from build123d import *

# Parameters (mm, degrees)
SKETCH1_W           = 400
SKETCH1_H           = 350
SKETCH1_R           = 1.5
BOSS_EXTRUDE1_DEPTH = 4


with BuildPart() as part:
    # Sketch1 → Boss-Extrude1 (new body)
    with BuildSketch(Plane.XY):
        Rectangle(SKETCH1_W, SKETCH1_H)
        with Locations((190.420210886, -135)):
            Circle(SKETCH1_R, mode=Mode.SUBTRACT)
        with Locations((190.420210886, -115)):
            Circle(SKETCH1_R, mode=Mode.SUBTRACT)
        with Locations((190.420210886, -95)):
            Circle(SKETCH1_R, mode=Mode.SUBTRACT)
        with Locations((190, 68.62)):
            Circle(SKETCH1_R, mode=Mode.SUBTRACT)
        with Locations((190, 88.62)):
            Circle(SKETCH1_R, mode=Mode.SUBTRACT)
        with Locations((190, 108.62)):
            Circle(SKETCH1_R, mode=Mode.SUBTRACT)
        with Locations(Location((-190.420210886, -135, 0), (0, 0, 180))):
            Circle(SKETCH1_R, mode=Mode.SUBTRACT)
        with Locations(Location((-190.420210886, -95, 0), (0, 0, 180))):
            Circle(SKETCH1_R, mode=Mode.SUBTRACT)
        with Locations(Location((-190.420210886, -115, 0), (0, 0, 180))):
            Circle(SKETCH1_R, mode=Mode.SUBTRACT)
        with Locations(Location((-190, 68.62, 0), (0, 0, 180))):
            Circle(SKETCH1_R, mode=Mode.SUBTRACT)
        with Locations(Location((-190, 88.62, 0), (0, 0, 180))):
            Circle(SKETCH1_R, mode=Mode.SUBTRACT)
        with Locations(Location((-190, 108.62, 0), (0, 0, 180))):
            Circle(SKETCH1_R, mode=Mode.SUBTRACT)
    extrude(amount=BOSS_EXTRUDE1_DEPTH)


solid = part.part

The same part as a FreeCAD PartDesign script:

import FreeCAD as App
import Part
import Sketcher
from FreeCAD import Vector
Q = App.Units.Quantity

doc = App.newDocument("Part")
params = doc.addObject("Spreadsheet::Sheet", "Params")
for row, (alias, value) in enumerate([
    ("sketch1_diameter", "3 mm"),
    ("sketch1_width", "400 mm"),
    ("sketch1_height", "350 mm"),
    ("pad1_length", "4 mm"),
], start=1):
    params.set(f"A{row}", alias)
    params.set(f"B{row}", "=" + value)
    params.setAlias(f"B{row}", alias)

body = doc.addObject("PartDesign::Body", "Body")

# Sketch on XY plane
sketch1 = body.newObject("Sketcher::SketchObject", "Sketch")
sketch1.AttachmentSupport = (doc.getObject("XY_Plane"), [""])
sketch1.MapMode = "FlatFace"
sketch1.addGeometry([
    Part.LineSegment(Vector(-200, 175, 0), Vector(-200, -175, 0)),  # 0
    Part.LineSegment(Vector(-200, -175, 0), Vector(200, -175, 0)),  # 1
    Part.LineSegment(Vector(200, -175, 0), Vector(200, 175, 0)),  # 2
    Part.LineSegment(Vector(200, 175, 0), Vector(-200, 175, 0)),  # 3
    Part.Circle(Vector(-190.4, -135, 0), Vector(0, 0, 1), 1.5),  # 4
    Part.Circle(Vector(-190.4, -115, 0), Vector(0, 0, 1), 1.5),  # 5
    Part.Circle(Vector(-190.4, -95, 0), Vector(0, 0, 1), 1.5),  # 6
    Part.Circle(Vector(190.4, -135, 0), Vector(0, 0, 1), 1.5),  # 7
    Part.Circle(Vector(190.4, -115, 0), Vector(0, 0, 1), 1.5),  # 8
    Part.Circle(Vector(190.4, -95, 0), Vector(0, 0, 1), 1.5),  # 9
    Part.Circle(Vector(-190, 68.6, 0), Vector(0, 0, 1), 1.5),  # 10
    Part.Circle(Vector(-190, 88.6, 0), Vector(0, 0, 1), 1.5),  # 11
    Part.Circle(Vector(-190, 108.6, 0), Vector(0, 0, 1), 1.5),  # 12
    Part.Circle(Vector(190, 68.6, 0), Vector(0, 0, 1), 1.5),  # 13
    Part.Circle(Vector(190, 88.6, 0), Vector(0, 0, 1), 1.5),  # 14
    Part.Circle(Vector(190, 108.6, 0), Vector(0, 0, 1), 1.5),  # 15
], False)
sketch1.addConstraint([
    Sketcher.Constraint("Coincident", 0, 2, 1, 1),
    Sketcher.Constraint("Coincident", 1, 2, 2, 1),
    Sketcher.Constraint("Coincident", 2, 2, 3, 1),
    Sketcher.Constraint("Coincident", 3, 2, 0, 1),
    Sketcher.Constraint("Vertical", 0),
    Sketcher.Constraint("Horizontal", 1),
    Sketcher.Constraint("Vertical", 2),
    Sketcher.Constraint("Horizontal", 3),
    Sketcher.Constraint("Equal", 4, 5),
    Sketcher.Constraint("Equal", 5, 6),
    Sketcher.Constraint("Equal", 6, 7),
    Sketcher.Constraint("Equal", 7, 8),
    Sketcher.Constraint("Equal", 8, 9),
    Sketcher.Constraint("Equal", 9, 10),
    Sketcher.Constraint("Equal", 10, 11),
    Sketcher.Constraint("Equal", 11, 12),
    Sketcher.Constraint("Equal", 12, 13),
    Sketcher.Constraint("Equal", 13, 14),
    Sketcher.Constraint("Equal", 14, 15),
    Sketcher.Constraint("Symmetric", 0, 2, 2, 2, -1, 1),
    Sketcher.Constraint("Symmetric", 4, 3, 7, 3, -2),
    Sketcher.Constraint("Symmetric", 5, 3, 8, 3, -2),
    Sketcher.Constraint("Symmetric", 6, 3, 9, 3, -2),
    Sketcher.Constraint("Symmetric", 10, 3, 13, 3, -2),
    Sketcher.Constraint("Symmetric", 11, 3, 14, 3, -2),
    Sketcher.Constraint("Symmetric", 12, 3, 15, 3, -2),
    Sketcher.Constraint("Vertical", 4, 3, 5, 3),
    Sketcher.Constraint("Vertical", 5, 3, 6, 3),
    Sketcher.Constraint("Vertical", 10, 3, 11, 3),
    Sketcher.Constraint("Vertical", 11, 3, 12, 3),
    Sketcher.Constraint("Diameter", 4, Q("3 mm")),
    Sketcher.Constraint("DistanceX", 1, 1, 1, 2, Q("400 mm")),
    Sketcher.Constraint("DistanceY", 0, 2, 0, 1, Q("350 mm")),
    Sketcher.Constraint("DistanceY", 4, 3, -1, 1, Q("135 mm")),
    Sketcher.Constraint("DistanceY", 5, 3, -1, 1, Q("115 mm")),
    Sketcher.Constraint("DistanceY", 6, 3, -1, 1, Q("95 mm")),
    Sketcher.Constraint("DistanceX", 10, 3, -1, 1, Q("190 mm")),
    Sketcher.Constraint("DistanceY", 10, 3, 11, 3, Q("20 mm")),
    Sketcher.Constraint("DistanceY", 11, 3, 12, 3, Q("20 mm")),
    Sketcher.Constraint("DistanceY", -1, 1, 10, 3, Q("68.62 mm")),
    Sketcher.Constraint("DistanceX", 4, 3, -1, 1, Q("190.420211 mm")),
])
sketch1.setExpression("Constraints[30]", "Params.sketch1_diameter")
sketch1.setExpression("Constraints[31]", "Params.sketch1_width")
sketch1.setExpression("Constraints[32]", "Params.sketch1_height")
pad1 = body.newObject("PartDesign::Pad", "Pad")
pad1.Profile = sketch1
pad1.setExpression("Length", "Params.pad1_length")

doc.recompute()
